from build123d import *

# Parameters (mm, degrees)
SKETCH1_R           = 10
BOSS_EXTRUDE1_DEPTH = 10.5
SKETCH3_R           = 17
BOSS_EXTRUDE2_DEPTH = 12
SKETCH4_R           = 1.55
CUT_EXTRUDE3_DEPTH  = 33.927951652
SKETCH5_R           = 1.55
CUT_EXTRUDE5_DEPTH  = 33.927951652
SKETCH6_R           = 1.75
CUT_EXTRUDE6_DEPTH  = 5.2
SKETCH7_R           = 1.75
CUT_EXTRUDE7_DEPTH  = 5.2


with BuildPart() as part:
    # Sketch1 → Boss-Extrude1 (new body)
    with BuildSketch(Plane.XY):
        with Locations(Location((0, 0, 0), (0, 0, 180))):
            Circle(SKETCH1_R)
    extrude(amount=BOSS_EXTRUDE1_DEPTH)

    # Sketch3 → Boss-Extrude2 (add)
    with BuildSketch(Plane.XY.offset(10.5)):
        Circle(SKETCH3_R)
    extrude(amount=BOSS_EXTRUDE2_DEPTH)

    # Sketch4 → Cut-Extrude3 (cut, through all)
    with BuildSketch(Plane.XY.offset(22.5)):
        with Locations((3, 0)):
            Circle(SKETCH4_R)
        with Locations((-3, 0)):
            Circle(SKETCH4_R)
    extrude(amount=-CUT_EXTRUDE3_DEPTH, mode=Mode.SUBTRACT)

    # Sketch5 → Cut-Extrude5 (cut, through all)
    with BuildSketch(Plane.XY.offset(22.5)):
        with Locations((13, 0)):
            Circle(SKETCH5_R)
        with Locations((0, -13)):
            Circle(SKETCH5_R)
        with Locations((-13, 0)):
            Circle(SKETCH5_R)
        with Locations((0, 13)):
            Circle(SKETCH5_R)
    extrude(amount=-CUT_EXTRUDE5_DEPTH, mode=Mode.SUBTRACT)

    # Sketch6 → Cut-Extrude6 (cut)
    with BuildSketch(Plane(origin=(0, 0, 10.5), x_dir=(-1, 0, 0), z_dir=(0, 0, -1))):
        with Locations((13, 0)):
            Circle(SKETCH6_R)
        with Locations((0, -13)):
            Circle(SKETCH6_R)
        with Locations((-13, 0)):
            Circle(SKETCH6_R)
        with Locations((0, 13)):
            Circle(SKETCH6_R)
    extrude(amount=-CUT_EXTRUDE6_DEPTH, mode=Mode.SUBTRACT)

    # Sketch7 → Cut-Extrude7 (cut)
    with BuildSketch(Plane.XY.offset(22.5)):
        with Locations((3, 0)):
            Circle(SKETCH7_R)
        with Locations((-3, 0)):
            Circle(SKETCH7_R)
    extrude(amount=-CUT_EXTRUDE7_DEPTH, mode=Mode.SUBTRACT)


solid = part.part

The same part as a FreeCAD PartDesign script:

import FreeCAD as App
import Part
import Sketcher
from FreeCAD import Vector
Q = App.Units.Quantity

doc = App.newDocument("Part")
body = doc.addObject("PartDesign::Body", "Body")

# Sketch on XY plane
sketch1 = body.newObject("Sketcher::SketchObject", "Sketch")
sketch1.AttachmentSupport = (doc.getObject("XY_Plane"), [""])
sketch1.MapMode = "FlatFace"
sketch1.addGeometry(Part.Circle(Vector(0, 0, 0), Vector(0, 0, 1), 10), False)
sketch1.addConstraint(Sketcher.Constraint("Coincident", 0, 3, -1, 1))
sketch1.addConstraint(Sketcher.Constraint("Diameter", 0, Q("20 mm")))
pad1 = body.newObject("PartDesign::Pad", "Pad")
pad1.Profile = sketch1
pad1.Length = 10.5

# Sketch on XY plane
sketch2 = body.newObject("Sketcher::SketchObject", "Sketch001")
sketch2.AttachmentSupport = (doc.getObject("XY_Plane"), [""])
sketch2.MapMode = "FlatFace"
sketch2.AttachmentOffset = App.Placement(Vector(0, 0, 10.5), App.Rotation())
sketch2.addGeometry(Part.Circle(Vector(0, 0, 0), Vector(0, 0, 1), 17), False)
sketch2.addConstraint(Sketcher.Constraint("Coincident", 0, 3, -1, 1))
sketch2.addConstraint(Sketcher.Constraint("Diameter", 0, Q("34 mm")))
pad2 = body.newObject("PartDesign::Pad", "Pad001")
pad2.Profile = sketch2
pad2.Length = 12

# Sketch on XY plane
sketch3 = body.newObject("Sketcher::SketchObject", "Sketch002")
sketch3.AttachmentSupport = (doc.getObject("XY_Plane"), [""])
sketch3.MapMode = "FlatFace"
sketch3.AttachmentOffset = App.Placement(Vector(0, 0, 22.5), App.Rotation())
sketch3.addGeometry(Part.Circle(Vector(3, 0, 0), Vector(0, 0, 1), 1.6), False)
sketch3.addGeometry(Part.Circle(Vector(-3, 0, 0), Vector(0, 0, 1), 1.6), False)
sketch3.addConstraint(Sketcher.Constraint("Equal", 0, 1))
sketch3.addConstraint(Sketcher.Constraint("Symmetric", 0, 3, 1, 3, -1, 1))
sketch3.addConstraint(Sketcher.Constraint("PointOnObject", 0, 3, -1))
sketch3.addConstraint(Sketcher.Constraint("Diameter", 0, Q("3.1 mm")))
sketch3.addConstraint(Sketcher.Constraint("DistanceX", -1, 1, 0, 3, Q("3 mm")))
pocket1 = body.newObject("PartDesign::Pocket", "Pocket")
pocket1.Profile = sketch3
pocket1.Type = "ThroughAll"

# Sketch on XY plane
sketch4 = body.newObject("Sketcher::SketchObject", "Sketch003")
sketch4.AttachmentSupport = (doc.getObject("XY_Plane"), [""])
sketch4.MapMode = "FlatFace"
sketch4.AttachmentOffset = App.Placement(Vector(0, 0, 22.5), App.Rotation())
sketch4.addGeometry(Part.Circle(Vector(13, 0, 0), Vector(0, 0, 1), 1.6), False)
sketch4.addGeometry(Part.Circle(Vector(0, -13, 0), Vector(0, 0, 1), 1.6), False)
sketch4.addGeometry(Part.Circle(Vector(-13, 0, 0), Vector(0, 0, 1), 1.6), False)
sketch4.addGeometry(Part.Circle(Vector(0, 13, 0), Vector(0, 0, 1), 1.6), False)
sketch4.addConstraint(Sketcher.Constraint("Equal", 0, 1))
sketch4.addConstraint(Sketcher.Constraint("Equal", 1, 2))
sketch4.addConstraint(Sketcher.Constraint("Equal", 2, 3))
sketch4.addConstraint(Sketcher.Constraint("Symmetric", 0, 3, 2, 3, -1, 1))
sketch4.addConstraint(Sketcher.Constraint("Symmetric", 1, 3, 3, 3, -1, 1))
sketch4.addConstraint(Sketcher.Constraint("PointOnObject", 0, 3, -1))
sketch4.addConstraint(Sketcher.Constraint("PointOnObject", 1, 3, -2))
sketch4.addConstraint(Sketcher.Constraint("Diameter", 0, Q("3.1 mm")))
sketch4.addConstraint(Sketcher.Constraint("DistanceX", -1, 1, 0, 3, Q("13 mm")))
sketch4.addConstraint(Sketcher.Constraint("DistanceY", 1, 3, -1, 1, Q("13 mm")))
pocket2 = body.newObject("PartDesign::Pocket", "Pocket001")
pocket2.Profile = sketch4
pocket2.Type = "ThroughAll"

# Sketch on XY plane
sketch5 = body.newObject("Sketcher::SketchObject", "Sketch004")
sketch5.AttachmentSupport = (doc.getObject("XY_Plane"), [""])
sketch5.MapMode = "FlatFace"
sketch5.AttachmentOffset = App.Placement(Vector(0, 0, 10.5), App.Rotation())
sketch5.addGeometry(Part.Circle(Vector(-13, 0, 0), Vector(0, 0, 1), 1.8), False)
sketch5.addGeometry(Part.Circle(Vector(0, -13, 0), Vector(0, 0, 1), 1.8), False)
sketch5.addGeometry(Part.Circle(Vector(13, 0, 0), Vector(0, 0, 1), 1.8), False)
sketch5.addGeometry(Part.Circle(Vector(0, 13, 0), Vector(0, 0, 1), 1.8), False)
sketch5.addConstraint(Sketcher.Constraint("Equal", 0, 1))
sketch5.addConstraint(Sketcher.Constraint("Equal", 1, 2))
sketch5.addConstraint(Sketcher.Constraint("Equal", 2, 3))
sketch5.addConstraint(Sketcher.Constraint("Symmetric", 0, 3, 2, 3, -1, 1))
sketch5.addConstraint(Sketcher.Constraint("Symmetric", 1, 3, 3, 3, -1, 1))
sketch5.addConstraint(Sketcher.Constraint("PointOnObject", 0, 3, -1))
sketch5.addConstraint(Sketcher.Constraint("PointOnObject", 1, 3, -2))
sketch5.addConstraint(Sketcher.Constraint("Diameter", 0, Q("3.5 mm")))
sketch5.addConstraint(Sketcher.Constraint("DistanceX", 0, 3, -1, 1, Q("13 mm")))
sketch5.addConstraint(Sketcher.Constraint("DistanceY", 1, 3, -1, 1, Q("13 mm")))
pocket3 = body.newObject("PartDesign::Pocket", "Pocket002")
pocket3.Profile = sketch5
pocket3.Length = 5.2
pocket3.Reversed = True

# Sketch on XY plane
sketch6 = body.newObject("Sketcher::SketchObject", "Sketch005")
sketch6.AttachmentSupport = (doc.getObject("XY_Plane"), [""])
sketch6.MapMode = "FlatFace"
sketch6.AttachmentOffset = App.Placement(Vector(0, 0, 22.5), App.Rotation())
sketch6.addGeometry(Part.Circle(Vector(3, 0, 0), Vector(0, 0, 1), 1.8), False)
sketch6.addGeometry(Part.Circle(Vector(-3, 0, 0), Vector(0, 0, 1), 1.8), False)
sketch6.addConstraint(Sketcher.Constraint("Equal", 0, 1))
sketch6.addConstraint(Sketcher.Constraint("Symmetric", 0, 3, 1, 3, -1, 1))
sketch6.addConstraint(Sketcher.Constraint("PointOnObject", 0, 3, -1))
sketch6.addConstraint(Sketcher.Constraint("Diameter", 0, Q("3.5 mm")))
sketch6.addConstraint(Sketcher.Constraint("DistanceX", -1, 1, 0, 3, Q("3 mm")))
pocket4 = body.newObject("PartDesign::Pocket", "Pocket003")
pocket4.Profile = sketch6
pocket4.Length = 5.2

doc.recompute()
